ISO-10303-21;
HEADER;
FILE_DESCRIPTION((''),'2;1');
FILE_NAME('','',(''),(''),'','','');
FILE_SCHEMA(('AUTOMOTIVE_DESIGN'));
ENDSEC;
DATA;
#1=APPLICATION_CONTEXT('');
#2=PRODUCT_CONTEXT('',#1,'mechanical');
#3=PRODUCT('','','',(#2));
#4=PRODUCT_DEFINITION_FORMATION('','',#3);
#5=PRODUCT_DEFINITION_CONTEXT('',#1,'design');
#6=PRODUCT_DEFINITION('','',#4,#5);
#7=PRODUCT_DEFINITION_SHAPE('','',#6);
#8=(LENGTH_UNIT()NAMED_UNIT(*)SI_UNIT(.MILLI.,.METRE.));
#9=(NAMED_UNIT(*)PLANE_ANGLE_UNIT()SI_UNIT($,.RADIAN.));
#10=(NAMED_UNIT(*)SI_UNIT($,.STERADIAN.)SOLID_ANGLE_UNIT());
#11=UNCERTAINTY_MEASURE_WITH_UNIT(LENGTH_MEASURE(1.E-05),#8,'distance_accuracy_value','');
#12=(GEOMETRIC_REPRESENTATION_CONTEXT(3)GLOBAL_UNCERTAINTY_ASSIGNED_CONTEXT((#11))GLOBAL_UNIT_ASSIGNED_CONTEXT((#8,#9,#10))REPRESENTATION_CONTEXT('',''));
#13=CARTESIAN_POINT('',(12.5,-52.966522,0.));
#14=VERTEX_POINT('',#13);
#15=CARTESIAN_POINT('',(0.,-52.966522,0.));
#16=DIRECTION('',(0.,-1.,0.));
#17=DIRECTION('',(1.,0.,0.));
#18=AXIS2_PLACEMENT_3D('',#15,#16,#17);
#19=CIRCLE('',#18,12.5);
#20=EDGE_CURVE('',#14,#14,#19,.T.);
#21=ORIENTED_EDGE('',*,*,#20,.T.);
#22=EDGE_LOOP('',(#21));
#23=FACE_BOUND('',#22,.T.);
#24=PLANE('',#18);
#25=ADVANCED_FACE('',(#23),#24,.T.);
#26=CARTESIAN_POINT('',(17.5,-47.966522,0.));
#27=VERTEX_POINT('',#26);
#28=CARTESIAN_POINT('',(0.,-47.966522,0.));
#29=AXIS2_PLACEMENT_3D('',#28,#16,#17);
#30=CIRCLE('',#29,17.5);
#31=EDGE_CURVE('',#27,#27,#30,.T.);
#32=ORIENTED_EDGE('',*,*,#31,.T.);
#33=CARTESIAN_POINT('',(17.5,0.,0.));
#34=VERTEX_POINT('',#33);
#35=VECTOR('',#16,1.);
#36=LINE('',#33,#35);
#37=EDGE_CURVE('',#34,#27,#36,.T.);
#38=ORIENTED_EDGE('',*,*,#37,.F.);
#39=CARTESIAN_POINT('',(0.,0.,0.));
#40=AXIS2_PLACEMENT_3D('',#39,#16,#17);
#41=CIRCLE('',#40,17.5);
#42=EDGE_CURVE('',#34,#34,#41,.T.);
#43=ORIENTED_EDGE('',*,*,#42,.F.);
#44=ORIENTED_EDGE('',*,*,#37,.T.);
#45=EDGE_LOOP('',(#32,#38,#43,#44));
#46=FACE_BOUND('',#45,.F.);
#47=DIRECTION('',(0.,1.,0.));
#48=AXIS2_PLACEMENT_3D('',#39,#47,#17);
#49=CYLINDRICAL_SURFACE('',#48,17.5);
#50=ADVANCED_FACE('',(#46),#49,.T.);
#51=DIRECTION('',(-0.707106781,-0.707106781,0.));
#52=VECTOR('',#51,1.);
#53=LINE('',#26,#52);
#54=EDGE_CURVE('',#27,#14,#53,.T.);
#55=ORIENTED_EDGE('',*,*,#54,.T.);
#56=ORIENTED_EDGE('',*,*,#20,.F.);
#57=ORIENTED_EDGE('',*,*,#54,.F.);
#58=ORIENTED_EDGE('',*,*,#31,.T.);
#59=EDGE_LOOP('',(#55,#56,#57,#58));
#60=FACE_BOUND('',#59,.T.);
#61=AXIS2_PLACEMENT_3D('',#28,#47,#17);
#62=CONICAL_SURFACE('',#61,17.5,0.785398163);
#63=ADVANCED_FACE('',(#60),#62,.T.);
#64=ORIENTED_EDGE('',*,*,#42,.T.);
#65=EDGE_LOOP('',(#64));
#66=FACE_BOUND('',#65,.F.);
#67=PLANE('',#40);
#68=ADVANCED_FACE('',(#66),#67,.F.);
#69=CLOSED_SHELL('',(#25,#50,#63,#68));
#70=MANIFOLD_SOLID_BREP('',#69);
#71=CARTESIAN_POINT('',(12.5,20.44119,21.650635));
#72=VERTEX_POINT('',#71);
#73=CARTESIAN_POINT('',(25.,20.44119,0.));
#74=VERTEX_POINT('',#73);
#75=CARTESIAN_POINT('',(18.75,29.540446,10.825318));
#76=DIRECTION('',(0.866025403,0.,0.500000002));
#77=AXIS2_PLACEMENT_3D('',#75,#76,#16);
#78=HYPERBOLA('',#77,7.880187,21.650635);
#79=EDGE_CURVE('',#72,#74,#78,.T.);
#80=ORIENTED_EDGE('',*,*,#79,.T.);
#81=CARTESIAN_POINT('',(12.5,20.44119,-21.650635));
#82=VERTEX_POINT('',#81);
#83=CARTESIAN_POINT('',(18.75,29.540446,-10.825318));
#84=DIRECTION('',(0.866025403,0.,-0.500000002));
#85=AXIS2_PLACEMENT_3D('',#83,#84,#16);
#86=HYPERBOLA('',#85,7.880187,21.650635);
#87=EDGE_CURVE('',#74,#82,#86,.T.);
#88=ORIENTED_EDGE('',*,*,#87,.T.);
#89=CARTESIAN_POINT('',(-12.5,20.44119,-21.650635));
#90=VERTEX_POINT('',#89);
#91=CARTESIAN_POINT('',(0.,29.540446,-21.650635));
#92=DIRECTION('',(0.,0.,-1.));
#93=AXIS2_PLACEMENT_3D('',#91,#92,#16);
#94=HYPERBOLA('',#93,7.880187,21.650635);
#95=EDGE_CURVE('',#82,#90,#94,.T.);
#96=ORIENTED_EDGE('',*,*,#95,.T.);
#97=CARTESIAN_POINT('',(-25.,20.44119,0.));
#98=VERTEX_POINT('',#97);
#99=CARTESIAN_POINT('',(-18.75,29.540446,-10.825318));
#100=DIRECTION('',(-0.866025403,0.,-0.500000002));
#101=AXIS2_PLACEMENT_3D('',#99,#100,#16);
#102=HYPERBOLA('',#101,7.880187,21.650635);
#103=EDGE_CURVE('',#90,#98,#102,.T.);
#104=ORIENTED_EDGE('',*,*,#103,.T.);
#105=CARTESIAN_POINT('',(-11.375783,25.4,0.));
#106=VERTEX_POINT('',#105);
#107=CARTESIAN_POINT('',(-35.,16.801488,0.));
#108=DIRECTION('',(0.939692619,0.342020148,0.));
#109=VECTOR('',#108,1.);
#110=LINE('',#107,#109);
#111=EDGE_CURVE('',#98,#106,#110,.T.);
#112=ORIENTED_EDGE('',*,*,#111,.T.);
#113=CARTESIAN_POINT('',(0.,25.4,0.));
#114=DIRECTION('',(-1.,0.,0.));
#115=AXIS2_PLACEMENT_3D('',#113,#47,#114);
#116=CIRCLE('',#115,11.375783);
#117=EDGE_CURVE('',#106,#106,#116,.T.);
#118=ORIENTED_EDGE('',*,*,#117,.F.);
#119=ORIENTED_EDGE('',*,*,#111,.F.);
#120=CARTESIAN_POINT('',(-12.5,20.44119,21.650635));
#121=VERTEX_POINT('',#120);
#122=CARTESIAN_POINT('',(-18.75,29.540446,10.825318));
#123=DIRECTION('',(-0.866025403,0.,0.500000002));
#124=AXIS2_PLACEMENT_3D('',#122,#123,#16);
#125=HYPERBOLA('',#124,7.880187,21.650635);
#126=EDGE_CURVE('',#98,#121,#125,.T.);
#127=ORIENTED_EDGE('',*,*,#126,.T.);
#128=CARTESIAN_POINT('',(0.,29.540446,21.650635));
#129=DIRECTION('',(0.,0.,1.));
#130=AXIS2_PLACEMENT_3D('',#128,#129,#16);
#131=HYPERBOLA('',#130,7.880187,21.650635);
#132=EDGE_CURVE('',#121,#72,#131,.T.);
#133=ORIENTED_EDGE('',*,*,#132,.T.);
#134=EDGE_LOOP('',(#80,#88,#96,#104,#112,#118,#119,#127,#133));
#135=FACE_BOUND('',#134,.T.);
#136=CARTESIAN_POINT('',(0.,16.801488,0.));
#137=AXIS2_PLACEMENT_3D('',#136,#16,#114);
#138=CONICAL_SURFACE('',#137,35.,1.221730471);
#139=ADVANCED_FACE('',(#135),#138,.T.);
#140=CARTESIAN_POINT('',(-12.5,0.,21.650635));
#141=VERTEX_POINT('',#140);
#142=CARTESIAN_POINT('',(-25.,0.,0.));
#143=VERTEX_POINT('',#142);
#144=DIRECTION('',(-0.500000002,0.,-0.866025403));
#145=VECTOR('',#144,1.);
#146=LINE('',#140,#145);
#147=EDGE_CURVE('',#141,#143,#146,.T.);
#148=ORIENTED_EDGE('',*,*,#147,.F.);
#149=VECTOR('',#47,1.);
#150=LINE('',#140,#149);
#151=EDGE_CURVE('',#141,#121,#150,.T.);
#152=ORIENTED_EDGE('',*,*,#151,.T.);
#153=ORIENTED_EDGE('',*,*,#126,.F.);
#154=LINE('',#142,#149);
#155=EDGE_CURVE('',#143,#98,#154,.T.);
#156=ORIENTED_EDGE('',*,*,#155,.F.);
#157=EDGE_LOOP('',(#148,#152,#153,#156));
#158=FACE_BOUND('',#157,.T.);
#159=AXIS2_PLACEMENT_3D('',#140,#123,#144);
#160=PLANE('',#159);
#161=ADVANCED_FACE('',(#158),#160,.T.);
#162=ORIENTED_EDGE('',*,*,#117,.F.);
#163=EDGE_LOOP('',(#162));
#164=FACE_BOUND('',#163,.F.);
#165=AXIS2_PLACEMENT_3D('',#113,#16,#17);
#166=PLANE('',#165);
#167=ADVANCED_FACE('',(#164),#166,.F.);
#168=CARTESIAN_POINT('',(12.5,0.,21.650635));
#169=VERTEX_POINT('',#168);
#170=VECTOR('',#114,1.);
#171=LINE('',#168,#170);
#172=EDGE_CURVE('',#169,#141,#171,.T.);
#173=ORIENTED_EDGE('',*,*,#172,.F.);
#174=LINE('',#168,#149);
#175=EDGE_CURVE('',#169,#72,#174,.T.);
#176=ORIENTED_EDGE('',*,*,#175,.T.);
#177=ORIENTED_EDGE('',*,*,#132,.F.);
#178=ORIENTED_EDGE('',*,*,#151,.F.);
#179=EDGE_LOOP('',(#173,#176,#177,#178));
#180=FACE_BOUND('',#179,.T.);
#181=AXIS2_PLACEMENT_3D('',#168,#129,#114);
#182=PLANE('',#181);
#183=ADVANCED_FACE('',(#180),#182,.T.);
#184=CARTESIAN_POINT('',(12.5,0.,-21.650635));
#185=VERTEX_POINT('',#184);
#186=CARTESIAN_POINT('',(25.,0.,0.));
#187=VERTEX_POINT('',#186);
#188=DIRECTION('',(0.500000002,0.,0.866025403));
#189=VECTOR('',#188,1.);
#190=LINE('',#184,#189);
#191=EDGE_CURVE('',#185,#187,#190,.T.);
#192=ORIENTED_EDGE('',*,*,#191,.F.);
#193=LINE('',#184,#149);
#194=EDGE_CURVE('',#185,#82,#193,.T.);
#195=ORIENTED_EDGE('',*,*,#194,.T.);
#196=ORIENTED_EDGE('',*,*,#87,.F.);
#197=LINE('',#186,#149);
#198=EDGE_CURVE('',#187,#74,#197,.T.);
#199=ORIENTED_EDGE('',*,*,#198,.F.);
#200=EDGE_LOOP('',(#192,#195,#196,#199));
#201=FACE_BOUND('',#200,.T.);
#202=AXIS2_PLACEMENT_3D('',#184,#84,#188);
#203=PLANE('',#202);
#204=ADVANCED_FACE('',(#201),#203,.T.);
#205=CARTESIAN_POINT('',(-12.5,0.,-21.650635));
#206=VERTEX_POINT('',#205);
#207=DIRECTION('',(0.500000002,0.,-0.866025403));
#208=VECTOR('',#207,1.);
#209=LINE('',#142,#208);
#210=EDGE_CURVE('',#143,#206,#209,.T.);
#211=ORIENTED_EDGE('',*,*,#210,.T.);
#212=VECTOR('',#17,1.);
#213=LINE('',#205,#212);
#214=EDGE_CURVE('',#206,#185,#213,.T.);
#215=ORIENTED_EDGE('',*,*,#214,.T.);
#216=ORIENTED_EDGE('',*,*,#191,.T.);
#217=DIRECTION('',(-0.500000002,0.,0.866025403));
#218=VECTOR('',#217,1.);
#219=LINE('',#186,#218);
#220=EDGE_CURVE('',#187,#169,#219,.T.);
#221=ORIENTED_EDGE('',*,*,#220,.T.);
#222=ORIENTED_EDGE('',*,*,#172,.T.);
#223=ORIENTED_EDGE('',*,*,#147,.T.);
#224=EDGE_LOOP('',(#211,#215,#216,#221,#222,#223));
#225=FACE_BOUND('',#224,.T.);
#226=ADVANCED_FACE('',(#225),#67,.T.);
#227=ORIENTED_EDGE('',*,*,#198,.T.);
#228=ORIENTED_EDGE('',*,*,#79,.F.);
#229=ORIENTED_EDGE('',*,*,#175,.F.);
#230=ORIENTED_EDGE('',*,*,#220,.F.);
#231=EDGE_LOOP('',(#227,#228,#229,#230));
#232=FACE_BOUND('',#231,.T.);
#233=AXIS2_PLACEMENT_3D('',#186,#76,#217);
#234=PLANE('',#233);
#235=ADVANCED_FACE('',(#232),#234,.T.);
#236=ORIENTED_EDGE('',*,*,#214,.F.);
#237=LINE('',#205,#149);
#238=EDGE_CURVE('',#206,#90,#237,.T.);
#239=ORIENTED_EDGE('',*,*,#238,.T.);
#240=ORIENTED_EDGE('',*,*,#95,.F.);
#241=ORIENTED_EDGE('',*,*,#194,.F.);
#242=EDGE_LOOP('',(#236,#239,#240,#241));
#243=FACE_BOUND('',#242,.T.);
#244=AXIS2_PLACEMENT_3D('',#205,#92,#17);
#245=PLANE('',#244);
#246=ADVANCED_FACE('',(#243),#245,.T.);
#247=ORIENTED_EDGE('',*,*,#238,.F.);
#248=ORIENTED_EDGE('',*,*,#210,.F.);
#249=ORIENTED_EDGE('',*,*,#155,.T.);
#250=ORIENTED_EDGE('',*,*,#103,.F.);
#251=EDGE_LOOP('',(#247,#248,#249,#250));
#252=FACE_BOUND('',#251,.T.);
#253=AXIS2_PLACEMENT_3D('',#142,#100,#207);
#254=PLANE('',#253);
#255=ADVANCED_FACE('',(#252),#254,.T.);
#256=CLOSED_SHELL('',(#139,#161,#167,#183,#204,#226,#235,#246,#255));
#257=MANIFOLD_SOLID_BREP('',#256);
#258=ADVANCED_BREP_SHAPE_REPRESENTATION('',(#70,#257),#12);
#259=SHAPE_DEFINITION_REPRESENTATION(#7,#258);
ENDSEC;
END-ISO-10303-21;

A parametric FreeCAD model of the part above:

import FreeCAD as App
import Part
import Sketcher
from FreeCAD import Vector
Q = App.Units.Quantity


def edges_at(feature, points):
    """Names of the edges that pass closest to the given points."""
    edges = feature.Shape.Edges
    near = lambda p: min(range(len(edges)), key=lambda i: edges[i].distToShape(Part.Vertex(*p))[0])
    return sorted({f"Edge{near(p) + 1}" for p in points})


def add_polygon(sketch, points):
    """Adds a closed chain of lines whose ends are joined by coincident constraints."""
    first, n = sketch.GeometryCount, len(points)
    for a, b in zip(points, points[1:] + points[:1]):
        sketch.addGeometry(Part.LineSegment(App.Vector(*a, 0), App.Vector(*b, 0)), False)
    for i in range(n):
        sketch.addConstraint(Sketcher.Constraint("Coincident", first + i, 2, first + (i + 1) % n, 1))

doc = App.newDocument("Part")
body = doc.addObject("PartDesign::Body", "Body")

# Sketch on XZ plane
sketch1 = doc.addObject("Sketcher::SketchObject", "Sketch")
body.addObject(sketch1)
sketch1.AttachmentSupport = (doc.XZ_Plane, [""])
sketch1.MapMode = "FlatFace"
add_polygon(sketch1, [(12, -22), (25, 0), (12, 22), (-12, 22), (-25, 0), (-12, -22)])  # lines 0-5
sketch1.addConstraint(Sketcher.Constraint("Horizontal", 2))
sketch1.addConstraint(Sketcher.Constraint("Horizontal", 5))
sketch1.addConstraint(Sketcher.Constraint("Symmetric", 0, 2, 3, 2, -1, 1))
sketch1.addConstraint(Sketcher.Constraint("Symmetric", 1, 2, 4, 2, -1, 1))
sketch1.addConstraint(Sketcher.Constraint("PointOnObject", 0, 2, -1))
sketch1.addConstraint(Sketcher.Constraint("Parallel", 0, 3))
sketch1.addConstraint(Sketcher.Constraint("Vertical", 2, 2, 4, 2))
sketch1.addConstraint(Sketcher.Constraint("DistanceX", 2, 2, 2, 1, Q("25 mm")))
sketch1.addConstraint(Sketcher.Constraint("Angle", 0, Q("60 deg")))
sketch1.addConstraint(Sketcher.Constraint("Distance", 0, Q("25 mm")))
pad1 = doc.addObject("PartDesign::Pad", "Pad")
body.addObject(pad1)
pad1.Profile = sketch1
pad1.Length = 25.4
pad1.Reversed = True

# Sketch on XY plane
sketch2 = doc.addObject("Sketcher::SketchObject", "Sketch001")
body.addObject(sketch2)
sketch2.AttachmentSupport = (doc.XY_Plane, [""])
sketch2.MapMode = "FlatFace"
add_polygon(sketch2, [(-35, 35), (-35, 17), (-10, 26), (-10, 35)])  # lines 0-3
sketch2.addConstraint(Sketcher.Constraint("Vertical", 0))
sketch2.addConstraint(Sketcher.Constraint("Vertical", 2))
sketch2.addConstraint(Sketcher.Constraint("Horizontal", 3))
sketch2.addConstraint(Sketcher.Constraint("DistanceX", 3, 2, 3, 1, Q("25 mm")))
sketch2.addConstraint(Sketcher.Constraint("Angle", 1, Q("20 deg")))
sketch2.addConstraint(Sketcher.Constraint("DistanceX", 0, 2, -1, 1, Q("35 mm")))
sketch2.addConstraint(Sketcher.Constraint("DistanceY", -1, 1, 2, 2, Q("35 mm")))
sketch2.addConstraint(Sketcher.Constraint("DistanceY", 0, 2, 0, 1, Q("18.198512 mm")))
groove = doc.addObject("PartDesign::Groove", "Groove")
body.addObject(groove)
groove.Profile = sketch2
groove.ReferenceAxis = (sketch2, ["V_Axis"])
groove.Angle = 360
body2 = doc.addObject("PartDesign::Body", "Body001")

# Sketch on XZ plane
sketch3 = doc.addObject("Sketcher::SketchObject", "Sketch002")
body2.addObject(sketch3)
sketch3.AttachmentSupport = (doc.getObject("XZ_Plane001"), [""])
sketch3.MapMode = "FlatFace"
sketch3.addGeometry(Part.Circle(Vector(0, 0, 0), Vector(0, 0, 1), 18), False)
sketch3.addConstraint(Sketcher.Constraint("Coincident", 0, 3, -1, 1))
sketch3.addConstraint(Sketcher.Constraint("Diameter", 0, Q("35 mm")))
pad2 = doc.addObject("PartDesign::Pad", "Pad001")
body2.addObject(pad2)
pad2.Profile = sketch3
pad2.Length = 52.966522
doc.recompute()

chamfer = doc.addObject("PartDesign::Chamfer", "Chamfer")
body2.addObject(chamfer)
chamfer.Base = (pad2, edges_at(pad2, [(-17.5, -52.967, 0)]))
chamfer.Size = 5

doc.recompute()
